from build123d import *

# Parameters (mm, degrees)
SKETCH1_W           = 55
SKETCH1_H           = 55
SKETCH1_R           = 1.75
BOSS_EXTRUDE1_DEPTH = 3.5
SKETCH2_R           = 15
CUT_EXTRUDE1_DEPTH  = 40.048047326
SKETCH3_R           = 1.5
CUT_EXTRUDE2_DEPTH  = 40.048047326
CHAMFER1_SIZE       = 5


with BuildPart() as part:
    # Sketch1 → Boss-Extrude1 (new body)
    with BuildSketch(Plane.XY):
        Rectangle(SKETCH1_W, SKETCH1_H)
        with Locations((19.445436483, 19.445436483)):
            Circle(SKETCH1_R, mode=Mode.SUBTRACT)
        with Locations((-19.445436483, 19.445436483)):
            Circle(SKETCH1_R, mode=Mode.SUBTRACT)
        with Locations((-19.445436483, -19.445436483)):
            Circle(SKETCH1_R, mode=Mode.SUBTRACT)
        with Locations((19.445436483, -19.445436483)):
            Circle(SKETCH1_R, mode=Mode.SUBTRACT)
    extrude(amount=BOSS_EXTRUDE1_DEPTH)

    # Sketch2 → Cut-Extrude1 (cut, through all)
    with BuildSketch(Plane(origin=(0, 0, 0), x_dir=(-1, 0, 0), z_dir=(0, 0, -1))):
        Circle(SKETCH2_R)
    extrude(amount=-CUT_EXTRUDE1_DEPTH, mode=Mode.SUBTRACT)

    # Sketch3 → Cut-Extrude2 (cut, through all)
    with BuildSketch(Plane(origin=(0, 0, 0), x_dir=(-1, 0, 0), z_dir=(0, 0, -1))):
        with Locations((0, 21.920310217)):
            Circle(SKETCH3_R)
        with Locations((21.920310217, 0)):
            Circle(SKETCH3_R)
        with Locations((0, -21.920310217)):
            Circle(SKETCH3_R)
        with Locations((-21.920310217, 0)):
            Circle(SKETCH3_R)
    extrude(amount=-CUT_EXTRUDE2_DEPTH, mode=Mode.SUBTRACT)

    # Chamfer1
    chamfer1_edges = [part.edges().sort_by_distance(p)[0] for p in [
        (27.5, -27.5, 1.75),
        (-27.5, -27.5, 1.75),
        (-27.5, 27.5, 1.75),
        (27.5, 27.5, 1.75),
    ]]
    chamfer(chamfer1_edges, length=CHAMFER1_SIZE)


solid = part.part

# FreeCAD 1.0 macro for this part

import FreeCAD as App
import Part
import Sketcher

V = App.Vector


def edges_at(feature, points):
    """Names of the edges that pass closest to the given points."""
    edges = feature.Shape.Edges
    near = lambda p: min(range(len(edges)), key=lambda i: edges[i].distToShape(Part.Vertex(*p))[0])
    return sorted({f"Edge{near(p) + 1}" for p in points})

doc = App.newDocument("Part")
params = doc.addObject("Spreadsheet::Sheet", "Params")
for row, (alias, value) in enumerate([
    ("sketch1_diameter", "3.5 mm"),
    ("sketch1_width", "55 mm"),
    ("pad1_length", "3.5 mm"),
    ("sketch2_diameter", "30 mm"),
    ("sketch3_diameter", "3 mm"),
    ("chamfer_size", "5 mm"),
], start=1):
    params.set(f"A{row}", alias)
    params.set(f"B{row}", "=" + value)
    params.setAlias(f"B{row}", alias)

body = doc.addObject("PartDesign::Body", "Body")

# Sketch on XY plane
sketch1 = body.newObject("Sketcher::SketchObject", "Sketch")
sketch1.AttachmentSupport = (doc.getObject("XY_Plane"), [""])
sketch1.MapMode = "FlatFace"
sketch1.addGeometry(Part.LineSegment(V(-27.5, 27.5, 0), V(-27.5, -27.5, 0)), False)
sketch1.addGeometry(Part.LineSegment(V(-27.5, -27.5, 0), V(27.5, -27.5, 0)), False)
sketch1.addGeometry(Part.LineSegment(V(27.5, -27.5, 0), V(27.5, 27.5, 0)), False)
sketch1.addGeometry(Part.LineSegment(V(27.5, 27.5, 0), V(-27.5, 27.5, 0)), False)
sketch1.addGeometry(Part.Circle(V(-19.4, -19.4, 0), V(0, 0, 1), 1.8), False)
sketch1.addGeometry(Part.Circle(V(19.4, -19.4, 0), V(0, 0, 1), 1.8), False)
sketch1.addGeometry(Part.Circle(V(-19.4, 19.4, 0), V(0, 0, 1), 1.8), False)
sketch1.addGeometry(Part.Circle(V(19.4, 19.4, 0), V(0, 0, 1), 1.8), False)
sketch1.addConstraint(Sketcher.Constraint("Coincident", 0, 2, 1, 1))
sketch1.addConstraint(Sketcher.Constraint("Coincident", 1, 2, 2, 1))
sketch1.addConstraint(Sketcher.Constraint("Coincident", 2, 2, 3, 1))
sketch1.addConstraint(Sketcher.Constraint("Coincident", 3, 2, 0, 1))
sketch1.addConstraint(Sketcher.Constraint("Vertical", 0))
sketch1.addConstraint(Sketcher.Constraint("Horizontal", 1))
sketch1.addConstraint(Sketcher.Constraint("Vertical", 2))
sketch1.addConstraint(Sketcher.Constraint("Horizontal", 3))
sketch1.addConstraint(Sketcher.Constraint("Equal", 4, 5))
sketch1.addConstraint(Sketcher.Constraint("Equal", 5, 6))
sketch1.addConstraint(Sketcher.Constraint("Equal", 6, 7))
sketch1.addConstraint(Sketcher.Constraint("Symmetric", 5, 3, 6, 3, -1, 1))
sketch1.addConstraint(Sketcher.Constraint("Symmetric", 4, 3, 7, 3, -1, 1))
sketch1.addConstraint(Sketcher.Constraint("Symmetric", 0, 2, 2, 2, -1, 1))
sketch1.addConstraint(Sketcher.Constraint("Symmetric", 4, 3, 5, 3, -2))
sketch1.addConstraint(Sketcher.Constraint("Equal", 3, 0))
sketch1.addConstraint(Sketcher.Constraint("Diameter", 4, 3.5))
sketch1.addConstraint(Sketcher.Constraint("DistanceX", 1, 1, 1, 2, 55.0))
sketch1.addConstraint(Sketcher.Constraint("DistanceX", 4, 3, -1, 1, 19.445436))
sketch1.addConstraint(Sketcher.Constraint("DistanceY", 4, 3, -1, 1, 19.445436))
sketch1.setExpression("Constraints[16]", "Params.sketch1_diameter")
sketch1.setExpression("Constraints[17]", "Params.sketch1_width")
pad1 = body.newObject("PartDesign::Pad", "Pad")
pad1.Profile = sketch1
pad1.setExpression("Length", "Params.pad1_length")

# Sketch on XY plane
sketch2 = body.newObject("Sketcher::SketchObject", "Sketch001")
sketch2.AttachmentSupport = (doc.getObject("XY_Plane"), [""])
sketch2.MapMode = "FlatFace"
sketch2.addGeometry(Part.Circle(V(0, 0, 0), V(0, 0, 1), 15), False)
sketch2.addConstraint(Sketcher.Constraint("Coincident", 0, 3, -1, 1))
sketch2.addConstraint(Sketcher.Constraint("Diameter", 0, 30.0))
sketch2.setExpression("Constraints[1]", "Params.sketch2_diameter")
pocket1 = body.newObject("PartDesign::Pocket", "Pocket")
pocket1.Profile = sketch2
pocket1.Type = "ThroughAll"
pocket1.Reversed = True

# Sketch on XY plane
sketch3 = body.newObject("Sketcher::SketchObject", "Sketch002")
sketch3.AttachmentSupport = (doc.getObject("XY_Plane"), [""])
sketch3.MapMode = "FlatFace"
sketch3.addGeometry(Part.Circle(V(0, 21.9, 0), V(0, 0, 1), 1.5), False)
sketch3.addGeometry(Part.Circle(V(-21.9, 0, 0), V(0, 0, 1), 1.5), False)
sketch3.addGeometry(Part.Circle(V(0, -21.9, 0), V(0, 0, 1), 1.5), False)
sketch3.addGeometry(Part.Circle(V(21.9, 0, 0), V(0, 0, 1), 1.5), False)
sketch3.addConstraint(Sketcher.Constraint("Equal", 0, 1))
sketch3.addConstraint(Sketcher.Constraint("Equal", 1, 2))
sketch3.addConstraint(Sketcher.Constraint("Equal", 2, 3))
sketch3.addConstraint(Sketcher.Constraint("Symmetric", 0, 3, 2, 3, -1, 1))
sketch3.addConstraint(Sketcher.Constraint("Symmetric", 1, 3, 3, 3, -1, 1))
sketch3.addConstraint(Sketcher.Constraint("PointOnObject", 0, 3, -2))
sketch3.addConstraint(Sketcher.Constraint("PointOnObject", 1, 3, -1))
sketch3.addConstraint(Sketcher.Constraint("Diameter", 0, 3.0))
sketch3.addConstraint(Sketcher.Constraint("DistanceY", -1, 1, 0, 3, 21.92031))
sketch3.addConstraint(Sketcher.Constraint("DistanceX", 1, 3, -1, 1, 21.92031))
sketch3.setExpression("Constraints[7]", "Params.sketch3_diameter")
pocket2 = body.newObject("PartDesign::Pocket", "Pocket001")
pocket2.Profile = sketch3
pocket2.Type = "ThroughAll"
pocket2.Reversed = True
doc.recompute()

chamfer = body.newObject("PartDesign::Chamfer", "Chamfer")
chamfer.Base = (pocket2, edges_at(pocket2, [
    (27.5, -27.5, 1.75),
    (-27.5, -27.5, 1.75),
    (-27.5, 27.5, 1.75),
    (27.5, 27.5, 1.75),
]))
chamfer.setExpression("Size", "Params.chamfer_size")

doc.recompute()
